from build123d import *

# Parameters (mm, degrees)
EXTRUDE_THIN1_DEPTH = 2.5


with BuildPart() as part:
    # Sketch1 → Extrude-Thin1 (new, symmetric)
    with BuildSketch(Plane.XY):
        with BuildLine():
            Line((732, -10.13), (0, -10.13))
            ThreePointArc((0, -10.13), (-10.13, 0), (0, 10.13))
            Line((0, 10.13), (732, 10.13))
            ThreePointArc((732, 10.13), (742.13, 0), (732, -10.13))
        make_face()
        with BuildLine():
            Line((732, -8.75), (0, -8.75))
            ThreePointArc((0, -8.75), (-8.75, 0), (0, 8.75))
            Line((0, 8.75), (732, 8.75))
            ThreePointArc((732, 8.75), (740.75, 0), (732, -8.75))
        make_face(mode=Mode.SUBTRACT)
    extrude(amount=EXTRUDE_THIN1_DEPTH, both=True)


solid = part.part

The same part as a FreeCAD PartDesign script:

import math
import FreeCAD as App
import Part
import Sketcher
Q = App.Units.Quantity

doc = App.newDocument("Part")
body = doc.addObject("PartDesign::Body", "Body")

sketch1 = doc.addObject("Sketcher::SketchObject", "Sketch")
body.addObject(sketch1)
sketch1.AttachmentSupport = (doc.XY_Plane, [""])
sketch1.MapMode = "FlatFace"
sketch1.addGeometry([
    Part.LineSegment(App.Vector(0, -10, 0), App.Vector(732, -10, 0)),
    Part.ArcOfCircle(Part.Circle(App.Vector(732, 0, 0), App.Vector(0, 0, 1), 10), math.radians(-90), math.radians(90)),
    Part.LineSegment(App.Vector(732, 10, 0), App.Vector(0, 10, 0)),
    Part.ArcOfCircle(Part.Circle(App.Vector(0, 0, 0), App.Vector(0, 0, 1), 10), math.radians(90), math.radians(270)),
    Part.LineSegment(App.Vector(732, -9, 0), App.Vector(0, -9, 0)),
    Part.ArcOfCircle(Part.Circle(App.Vector(0, 0, 0), App.Vector(0, 0, 1), 9), math.radians(90), math.radians(270)),
    Part.LineSegment(App.Vector(0, 9, 0), App.Vector(732, 9, 0)),
    Part.ArcOfCircle(Part.Circle(App.Vector(732, 0, 0), App.Vector(0, 0, 1), 9), math.radians(-90), math.radians(90)),
], False)
sketch1.addConstraint([
    Sketcher.Constraint("Tangent", 0, 2, 1, 1),
    Sketcher.Constraint("Tangent", 1, 2, 2, 1),
    Sketcher.Constraint("Tangent", 2, 2, 3, 1),
    Sketcher.Constraint("Tangent", 3, 2, 0, 1),
    Sketcher.Constraint("Tangent", 4, 2, 5, 2),
    Sketcher.Constraint("Tangent", 5, 1, 6, 1),
    Sketcher.Constraint("Tangent", 6, 2, 7, 2),
    Sketcher.Constraint("Tangent", 7, 1, 4, 1),
    Sketcher.Constraint("Horizontal", 0),
    Sketcher.Constraint("Horizontal", 2),
    Sketcher.Constraint("Horizontal", 4),
    Sketcher.Constraint("Horizontal", 6),
    Sketcher.Constraint("Coincident", 3, 3, -1, 1),
    Sketcher.Constraint("Coincident", 5, 3, -1, 1),
    Sketcher.Constraint("Vertical", 7, 3, 0, 2),
    Sketcher.Constraint("DistanceX", 0, 1, 0, 2, Q("732 mm")),
    Sketcher.Constraint("Radius", 1, Q("10.13 mm")),
    Sketcher.Constraint("Radius", 5, Q("8.75 mm")),
])
pad1 = doc.addObject("PartDesign::Pad", "Pad")
body.addObject(pad1)
pad1.Profile = sketch1
pad1.Length = 5
pad1.Midplane = True

doc.recompute()
